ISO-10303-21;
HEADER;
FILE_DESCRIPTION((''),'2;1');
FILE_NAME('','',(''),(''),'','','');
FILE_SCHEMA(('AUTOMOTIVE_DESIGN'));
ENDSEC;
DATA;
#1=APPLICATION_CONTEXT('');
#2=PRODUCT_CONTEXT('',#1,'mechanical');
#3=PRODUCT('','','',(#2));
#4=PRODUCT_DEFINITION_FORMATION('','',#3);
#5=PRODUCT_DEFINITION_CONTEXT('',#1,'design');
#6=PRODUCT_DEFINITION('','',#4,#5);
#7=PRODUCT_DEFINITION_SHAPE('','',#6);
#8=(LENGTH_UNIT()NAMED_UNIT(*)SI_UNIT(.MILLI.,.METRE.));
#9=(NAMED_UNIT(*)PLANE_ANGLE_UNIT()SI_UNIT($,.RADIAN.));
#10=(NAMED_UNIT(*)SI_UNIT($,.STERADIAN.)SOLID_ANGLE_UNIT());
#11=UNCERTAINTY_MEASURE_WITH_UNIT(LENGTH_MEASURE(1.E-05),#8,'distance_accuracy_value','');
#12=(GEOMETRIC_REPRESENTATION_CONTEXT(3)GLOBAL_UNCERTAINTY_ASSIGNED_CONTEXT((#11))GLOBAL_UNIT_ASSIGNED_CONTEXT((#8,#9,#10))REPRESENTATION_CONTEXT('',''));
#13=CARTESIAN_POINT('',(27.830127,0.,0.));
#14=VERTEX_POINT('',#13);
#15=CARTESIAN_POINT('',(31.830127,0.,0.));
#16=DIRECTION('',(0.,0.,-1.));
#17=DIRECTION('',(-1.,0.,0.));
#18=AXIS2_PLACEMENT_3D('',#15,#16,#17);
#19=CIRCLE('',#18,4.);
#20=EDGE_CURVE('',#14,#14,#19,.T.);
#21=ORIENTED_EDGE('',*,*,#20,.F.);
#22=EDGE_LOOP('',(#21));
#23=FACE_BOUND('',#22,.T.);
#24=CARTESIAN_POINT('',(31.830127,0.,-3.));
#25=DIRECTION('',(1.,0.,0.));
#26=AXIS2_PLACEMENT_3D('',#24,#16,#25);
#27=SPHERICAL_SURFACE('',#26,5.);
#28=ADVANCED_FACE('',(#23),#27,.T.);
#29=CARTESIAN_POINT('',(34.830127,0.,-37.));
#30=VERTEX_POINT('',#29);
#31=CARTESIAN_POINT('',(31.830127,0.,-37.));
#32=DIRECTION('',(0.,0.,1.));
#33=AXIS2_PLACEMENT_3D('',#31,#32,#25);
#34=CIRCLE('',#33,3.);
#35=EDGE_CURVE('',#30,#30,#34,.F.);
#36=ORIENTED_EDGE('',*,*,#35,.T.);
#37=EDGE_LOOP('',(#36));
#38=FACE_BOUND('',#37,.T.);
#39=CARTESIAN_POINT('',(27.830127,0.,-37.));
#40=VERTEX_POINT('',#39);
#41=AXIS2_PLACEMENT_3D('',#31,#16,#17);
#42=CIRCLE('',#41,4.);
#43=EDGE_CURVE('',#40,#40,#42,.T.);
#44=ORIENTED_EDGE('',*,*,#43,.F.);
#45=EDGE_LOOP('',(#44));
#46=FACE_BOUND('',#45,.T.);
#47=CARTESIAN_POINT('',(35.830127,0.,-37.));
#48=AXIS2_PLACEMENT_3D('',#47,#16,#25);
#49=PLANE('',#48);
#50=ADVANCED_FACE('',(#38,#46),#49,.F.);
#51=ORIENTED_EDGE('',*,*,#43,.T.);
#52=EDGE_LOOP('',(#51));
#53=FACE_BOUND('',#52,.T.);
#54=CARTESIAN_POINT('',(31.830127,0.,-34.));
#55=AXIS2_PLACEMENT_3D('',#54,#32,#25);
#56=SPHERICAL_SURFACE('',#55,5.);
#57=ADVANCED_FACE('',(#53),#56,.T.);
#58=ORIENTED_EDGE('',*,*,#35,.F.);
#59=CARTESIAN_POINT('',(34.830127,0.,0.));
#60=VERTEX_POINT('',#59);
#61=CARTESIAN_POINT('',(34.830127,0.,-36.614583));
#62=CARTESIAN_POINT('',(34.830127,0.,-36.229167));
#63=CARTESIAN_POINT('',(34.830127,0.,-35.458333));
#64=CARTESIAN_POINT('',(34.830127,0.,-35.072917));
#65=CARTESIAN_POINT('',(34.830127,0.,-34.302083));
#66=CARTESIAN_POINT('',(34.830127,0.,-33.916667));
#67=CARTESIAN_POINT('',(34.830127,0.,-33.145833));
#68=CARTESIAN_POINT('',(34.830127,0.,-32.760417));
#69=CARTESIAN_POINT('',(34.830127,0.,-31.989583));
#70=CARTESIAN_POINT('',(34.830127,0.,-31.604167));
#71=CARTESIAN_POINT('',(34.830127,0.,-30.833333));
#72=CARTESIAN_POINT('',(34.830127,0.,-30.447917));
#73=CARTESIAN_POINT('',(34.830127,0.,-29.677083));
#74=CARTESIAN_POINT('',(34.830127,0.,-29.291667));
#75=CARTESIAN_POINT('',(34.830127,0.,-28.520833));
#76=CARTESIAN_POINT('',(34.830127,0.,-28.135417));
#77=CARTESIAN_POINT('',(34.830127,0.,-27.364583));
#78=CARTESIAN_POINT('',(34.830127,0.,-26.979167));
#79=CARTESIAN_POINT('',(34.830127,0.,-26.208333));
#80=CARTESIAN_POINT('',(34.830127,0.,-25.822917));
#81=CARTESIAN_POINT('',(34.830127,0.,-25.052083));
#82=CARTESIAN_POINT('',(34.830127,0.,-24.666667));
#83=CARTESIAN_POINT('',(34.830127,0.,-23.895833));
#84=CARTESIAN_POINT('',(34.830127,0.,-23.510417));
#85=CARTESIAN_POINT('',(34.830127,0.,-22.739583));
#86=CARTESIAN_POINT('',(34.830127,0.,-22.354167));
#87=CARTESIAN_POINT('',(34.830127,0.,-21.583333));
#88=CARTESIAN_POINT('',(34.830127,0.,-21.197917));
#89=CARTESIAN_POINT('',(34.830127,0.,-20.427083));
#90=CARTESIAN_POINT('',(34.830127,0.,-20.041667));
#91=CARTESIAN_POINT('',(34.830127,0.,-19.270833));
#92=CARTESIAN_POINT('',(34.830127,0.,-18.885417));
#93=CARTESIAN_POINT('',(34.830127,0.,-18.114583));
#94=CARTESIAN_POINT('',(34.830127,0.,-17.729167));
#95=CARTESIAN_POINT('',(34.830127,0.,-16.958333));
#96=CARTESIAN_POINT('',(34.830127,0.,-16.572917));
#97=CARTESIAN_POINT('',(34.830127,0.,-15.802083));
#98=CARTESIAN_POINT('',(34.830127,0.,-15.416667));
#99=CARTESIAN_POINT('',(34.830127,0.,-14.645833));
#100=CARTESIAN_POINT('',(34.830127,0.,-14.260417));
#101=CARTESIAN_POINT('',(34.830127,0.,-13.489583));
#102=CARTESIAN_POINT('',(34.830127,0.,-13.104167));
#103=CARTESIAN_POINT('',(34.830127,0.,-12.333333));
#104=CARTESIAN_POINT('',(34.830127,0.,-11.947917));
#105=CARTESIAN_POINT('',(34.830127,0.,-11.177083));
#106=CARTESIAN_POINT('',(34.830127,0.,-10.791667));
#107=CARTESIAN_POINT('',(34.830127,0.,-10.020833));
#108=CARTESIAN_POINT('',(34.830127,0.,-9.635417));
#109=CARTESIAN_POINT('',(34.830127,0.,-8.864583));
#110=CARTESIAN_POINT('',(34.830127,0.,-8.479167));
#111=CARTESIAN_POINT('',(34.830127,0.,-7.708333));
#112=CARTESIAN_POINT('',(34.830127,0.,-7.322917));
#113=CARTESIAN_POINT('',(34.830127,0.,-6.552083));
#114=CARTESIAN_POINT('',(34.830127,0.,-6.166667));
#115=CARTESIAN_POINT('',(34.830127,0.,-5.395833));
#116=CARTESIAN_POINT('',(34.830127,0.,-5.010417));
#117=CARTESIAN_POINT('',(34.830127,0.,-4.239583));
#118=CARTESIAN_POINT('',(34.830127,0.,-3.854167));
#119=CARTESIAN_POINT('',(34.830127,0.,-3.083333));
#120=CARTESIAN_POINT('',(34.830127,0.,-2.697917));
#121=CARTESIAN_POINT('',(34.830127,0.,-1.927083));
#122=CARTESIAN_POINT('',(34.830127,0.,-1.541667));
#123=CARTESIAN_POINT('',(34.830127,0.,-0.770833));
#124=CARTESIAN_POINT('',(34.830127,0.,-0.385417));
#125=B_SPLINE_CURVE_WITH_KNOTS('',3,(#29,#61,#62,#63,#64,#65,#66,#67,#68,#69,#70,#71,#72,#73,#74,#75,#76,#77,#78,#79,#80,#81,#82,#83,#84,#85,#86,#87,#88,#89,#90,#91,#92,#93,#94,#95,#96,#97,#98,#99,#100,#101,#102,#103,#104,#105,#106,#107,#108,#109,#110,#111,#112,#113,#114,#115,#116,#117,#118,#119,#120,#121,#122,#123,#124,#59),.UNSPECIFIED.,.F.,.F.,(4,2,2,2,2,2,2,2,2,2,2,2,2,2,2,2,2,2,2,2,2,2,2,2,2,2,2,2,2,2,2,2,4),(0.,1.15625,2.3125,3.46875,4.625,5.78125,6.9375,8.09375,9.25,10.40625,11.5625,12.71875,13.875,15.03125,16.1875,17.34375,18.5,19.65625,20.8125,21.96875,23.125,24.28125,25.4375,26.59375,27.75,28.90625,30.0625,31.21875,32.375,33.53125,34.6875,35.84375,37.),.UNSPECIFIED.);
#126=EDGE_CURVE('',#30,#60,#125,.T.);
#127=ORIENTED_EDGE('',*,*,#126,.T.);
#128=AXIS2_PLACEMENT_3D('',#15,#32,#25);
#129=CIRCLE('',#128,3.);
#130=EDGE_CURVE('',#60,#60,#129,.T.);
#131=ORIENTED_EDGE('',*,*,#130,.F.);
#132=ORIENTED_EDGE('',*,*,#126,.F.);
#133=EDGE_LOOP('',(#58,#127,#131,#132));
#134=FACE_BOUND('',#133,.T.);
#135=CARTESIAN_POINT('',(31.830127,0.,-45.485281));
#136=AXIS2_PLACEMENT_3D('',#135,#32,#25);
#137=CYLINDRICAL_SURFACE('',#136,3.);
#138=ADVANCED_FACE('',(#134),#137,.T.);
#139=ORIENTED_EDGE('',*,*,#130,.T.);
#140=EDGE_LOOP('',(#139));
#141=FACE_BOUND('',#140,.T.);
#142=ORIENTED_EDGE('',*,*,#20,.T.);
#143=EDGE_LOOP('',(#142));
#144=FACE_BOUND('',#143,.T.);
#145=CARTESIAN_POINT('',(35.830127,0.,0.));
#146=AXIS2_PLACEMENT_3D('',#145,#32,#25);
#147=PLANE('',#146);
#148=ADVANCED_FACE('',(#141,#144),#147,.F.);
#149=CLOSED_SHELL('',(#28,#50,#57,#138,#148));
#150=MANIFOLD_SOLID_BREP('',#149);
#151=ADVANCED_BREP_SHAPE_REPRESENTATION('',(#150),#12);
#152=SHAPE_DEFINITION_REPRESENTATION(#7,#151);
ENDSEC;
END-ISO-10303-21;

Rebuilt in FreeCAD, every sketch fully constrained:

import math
import FreeCAD as App
import Part
import Sketcher
from FreeCAD import Vector

doc = App.newDocument("Part")
body = doc.addObject("PartDesign::Body", "Body")

# Sketch on XY plane
sketch1 = body.newObject("Sketcher::SketchObject", "Sketch")
sketch1.AttachmentSupport = (doc.getObject("XY_Plane"), [""])
sketch1.MapMode = "FlatFace"
sketch1.addGeometry(Part.Circle(Vector(31.8, 0, 0), Vector(0, 0, 1), 3), False)
sketch1.addConstraint([
    Sketcher.Constraint("PointOnObject", 0, 3, -1),
    Sketcher.Constraint("Diameter", 0, 6.0),
    Sketcher.Constraint("DistanceX", -1, 1, 0, 3, 31.830127),
])
pad1 = body.newObject("PartDesign::Pad", "Pad")
pad1.Profile = sketch1
pad1.Length = 37
pad1.Reversed = True

# Sketch on XZ plane
sketch2 = body.newObject("Sketcher::SketchObject", "Sketch001")
sketch2.AttachmentSupport = (doc.getObject("XZ_Plane"), [""])
sketch2.MapMode = "FlatFace"
sketch2.addGeometry([
    Part.LineSegment(Vector(31.8, 0, 0), Vector(31.8, 2, 0)),
    Part.ArcOfCircle(Part.Circle(Vector(31.8, -3, 0), Vector(0, 0, 1), 5), math.radians(37), math.radians(90)),
    Part.LineSegment(Vector(35.8, 0, 0), Vector(31.8, 0, 0)),
], False)
sketch2.addGeometry(Part.LineSegment(Vector(31.8, -3, 0), Vector(31.8, 2, 0)), True)  # axis
sketch2.addConstraint([
    Sketcher.Constraint("Coincident", 0, 2, 1, 2),
    Sketcher.Constraint("Coincident", 1, 1, 2, 1),
    Sketcher.Constraint("Coincident", 2, 2, 0, 1),
    Sketcher.Constraint("Vertical", 0),
    Sketcher.Constraint("Horizontal", 2),
    Sketcher.Constraint("Vertical", 3),
    Sketcher.Constraint("Coincident", 3, 1, 1, 3),
    Sketcher.Constraint("Coincident", 3, 2, 0, 2),
    Sketcher.Constraint("PointOnObject", 1, 1, -1),
    Sketcher.Constraint("Radius", 1, 5.0),
    Sketcher.Constraint("DistanceX", 2, 2, 2, 1, 4.0),
    Sketcher.Constraint("DistanceX", -1, 1, 1, 3, 31.830127),
])
revolution = body.newObject("PartDesign::Revolution", "Revolution")
revolution.Profile = sketch2
revolution.ReferenceAxis = (sketch2, ["Axis0"])
revolution.Angle = 360
doc.recompute()

datumplane = body.newObject("PartDesign::Plane", "DatumPlane")
datumplane.AttachmentSupport = (doc.getObject("XY_Plane"), [""])
datumplane.MapMode = "FlatFace"
datumplane.AttachmentOffset = App.Placement(Vector(0, 0, -18.5), App.Rotation())
mirrored = body.newObject("PartDesign::Mirrored", "Mirrored")
mirrored.Originals = [revolution]
mirrored.MirrorPlane = (datumplane, [""])
body.Tip = mirrored

doc.recompute()
